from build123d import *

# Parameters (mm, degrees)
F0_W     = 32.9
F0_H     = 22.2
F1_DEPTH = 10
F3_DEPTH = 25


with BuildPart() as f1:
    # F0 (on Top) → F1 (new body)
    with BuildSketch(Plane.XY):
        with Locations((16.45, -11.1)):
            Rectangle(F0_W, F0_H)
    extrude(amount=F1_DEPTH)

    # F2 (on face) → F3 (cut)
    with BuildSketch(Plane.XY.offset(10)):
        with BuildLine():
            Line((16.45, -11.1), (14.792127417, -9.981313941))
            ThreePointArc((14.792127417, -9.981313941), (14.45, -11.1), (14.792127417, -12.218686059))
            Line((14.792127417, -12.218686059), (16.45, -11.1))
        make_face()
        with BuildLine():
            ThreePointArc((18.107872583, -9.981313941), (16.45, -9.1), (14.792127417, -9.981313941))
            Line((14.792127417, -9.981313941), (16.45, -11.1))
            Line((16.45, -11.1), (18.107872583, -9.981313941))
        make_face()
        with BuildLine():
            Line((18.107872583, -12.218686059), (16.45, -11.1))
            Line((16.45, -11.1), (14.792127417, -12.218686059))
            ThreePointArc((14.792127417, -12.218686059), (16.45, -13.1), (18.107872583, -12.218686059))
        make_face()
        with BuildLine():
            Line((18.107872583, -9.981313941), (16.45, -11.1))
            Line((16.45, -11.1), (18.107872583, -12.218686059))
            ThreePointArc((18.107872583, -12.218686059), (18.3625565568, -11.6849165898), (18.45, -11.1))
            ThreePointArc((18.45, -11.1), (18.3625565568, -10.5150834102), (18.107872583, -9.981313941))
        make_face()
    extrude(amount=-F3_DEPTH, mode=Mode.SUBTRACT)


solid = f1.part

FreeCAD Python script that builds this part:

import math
import FreeCAD as App
import Part
import Sketcher
from FreeCAD import Vector
Q = App.Units.Quantity

doc = App.newDocument("Part")
body = doc.addObject("PartDesign::Body", "Body")

sketch1 = body.newObject("Sketcher::SketchObject", "Sketch")
sketch1.AttachmentSupport = (doc.getObject("XY_Plane"), [""])
sketch1.MapMode = "FlatFace"
sketch1.addGeometry([
    Part.LineSegment(Vector(0, 0, 0), Vector(0, -22, 0)),
    Part.LineSegment(Vector(0, -22, 0), Vector(33, -22, 0)),
    Part.LineSegment(Vector(33, -22, 0), Vector(33, 0, 0)),
    Part.LineSegment(Vector(33, 0, 0), Vector(0, 0, 0)),
], False)
sketch1.addConstraint([
    Sketcher.Constraint("Coincident", 0, 2, 1, 1),
    Sketcher.Constraint("Coincident", 1, 2, 2, 1),
    Sketcher.Constraint("Coincident", 2, 2, 3, 1),
    Sketcher.Constraint("Coincident", 3, 2, 0, 1),
    Sketcher.Constraint("Vertical", 0),
    Sketcher.Constraint("Horizontal", 1),
    Sketcher.Constraint("Vertical", 2),
    Sketcher.Constraint("Horizontal", 3),
    Sketcher.Constraint("Coincident", 3, 2, -1, 1),
    Sketcher.Constraint("DistanceX", 1, 1, 1, 2, Q("32.9 mm")),
    Sketcher.Constraint("DistanceY", 0, 2, 0, 1, Q("22.2 mm")),
])
pad1 = body.newObject("PartDesign::Pad", "Pad")
pad1.Profile = sketch1
pad1.Length = 10

sketch2 = body.newObject("Sketcher::SketchObject", "Sketch001")
sketch2.AttachmentSupport = (doc.getObject("XY_Plane"), [""])
sketch2.MapMode = "FlatFace"
sketch2.AttachmentOffset = App.Placement(Vector(0, 0, 10), App.Rotation())
sketch2.addGeometry([
    Part.ArcOfCircle(Part.Circle(Vector(16.4, -11.1, 0), Vector(0, 0, 1), 2), math.radians(146), math.radians(214)),
    Part.ArcOfCircle(Part.Circle(Vector(16.4, -11.1, 0), Vector(0, 0, 1), 2), math.radians(-146), math.radians(-34)),
    Part.ArcOfCircle(Part.Circle(Vector(16.4, -11.1, 0), Vector(0, 0, 1), 2), math.radians(-34), math.radians(0)),
    Part.ArcOfCircle(Part.Circle(Vector(16.4, -11.1, 0), Vector(0, 0, 1), 2), math.radians(0), math.radians(34)),
    Part.ArcOfCircle(Part.Circle(Vector(16.4, -11.1, 0), Vector(0, 0, 1), 2), math.radians(34), math.radians(146)),
], False)
sketch2.addConstraint([
    Sketcher.Constraint("Tangent", 0, 2, 1, 1),
    Sketcher.Constraint("Tangent", 1, 2, 2, 1),
    Sketcher.Constraint("Tangent", 2, 2, 3, 1),
    Sketcher.Constraint("Tangent", 3, 2, 4, 1),
    Sketcher.Constraint("Tangent", 4, 2, 0, 1),
    Sketcher.Constraint("Coincident", 2, 3, 0, 3),
    Sketcher.Constraint("Horizontal", 0, 2, 1, 2),
    Sketcher.Constraint("Horizontal", 4, 3, 2, 2),
    Sketcher.Constraint("Horizontal", 3, 2, 4, 2),
    Sketcher.Constraint("Vertical", 1, 2, 3, 2),
    Sketcher.Constraint("Radius", 0, Q("2 mm")),
    Sketcher.Constraint("DistanceY", 0, 3, -1, 1, Q("11.1 mm")),
    Sketcher.Constraint("DistanceX", -1, 1, 0, 3, Q("16.45 mm")),
    Sketcher.Constraint("DistanceX", -1, 1, 0, 2, Q("14.792127 mm")),
])
pocket1 = body.newObject("PartDesign::Pocket", "Pocket")
pocket1.Profile = sketch2
pocket1.Length = 25

doc.recompute()
